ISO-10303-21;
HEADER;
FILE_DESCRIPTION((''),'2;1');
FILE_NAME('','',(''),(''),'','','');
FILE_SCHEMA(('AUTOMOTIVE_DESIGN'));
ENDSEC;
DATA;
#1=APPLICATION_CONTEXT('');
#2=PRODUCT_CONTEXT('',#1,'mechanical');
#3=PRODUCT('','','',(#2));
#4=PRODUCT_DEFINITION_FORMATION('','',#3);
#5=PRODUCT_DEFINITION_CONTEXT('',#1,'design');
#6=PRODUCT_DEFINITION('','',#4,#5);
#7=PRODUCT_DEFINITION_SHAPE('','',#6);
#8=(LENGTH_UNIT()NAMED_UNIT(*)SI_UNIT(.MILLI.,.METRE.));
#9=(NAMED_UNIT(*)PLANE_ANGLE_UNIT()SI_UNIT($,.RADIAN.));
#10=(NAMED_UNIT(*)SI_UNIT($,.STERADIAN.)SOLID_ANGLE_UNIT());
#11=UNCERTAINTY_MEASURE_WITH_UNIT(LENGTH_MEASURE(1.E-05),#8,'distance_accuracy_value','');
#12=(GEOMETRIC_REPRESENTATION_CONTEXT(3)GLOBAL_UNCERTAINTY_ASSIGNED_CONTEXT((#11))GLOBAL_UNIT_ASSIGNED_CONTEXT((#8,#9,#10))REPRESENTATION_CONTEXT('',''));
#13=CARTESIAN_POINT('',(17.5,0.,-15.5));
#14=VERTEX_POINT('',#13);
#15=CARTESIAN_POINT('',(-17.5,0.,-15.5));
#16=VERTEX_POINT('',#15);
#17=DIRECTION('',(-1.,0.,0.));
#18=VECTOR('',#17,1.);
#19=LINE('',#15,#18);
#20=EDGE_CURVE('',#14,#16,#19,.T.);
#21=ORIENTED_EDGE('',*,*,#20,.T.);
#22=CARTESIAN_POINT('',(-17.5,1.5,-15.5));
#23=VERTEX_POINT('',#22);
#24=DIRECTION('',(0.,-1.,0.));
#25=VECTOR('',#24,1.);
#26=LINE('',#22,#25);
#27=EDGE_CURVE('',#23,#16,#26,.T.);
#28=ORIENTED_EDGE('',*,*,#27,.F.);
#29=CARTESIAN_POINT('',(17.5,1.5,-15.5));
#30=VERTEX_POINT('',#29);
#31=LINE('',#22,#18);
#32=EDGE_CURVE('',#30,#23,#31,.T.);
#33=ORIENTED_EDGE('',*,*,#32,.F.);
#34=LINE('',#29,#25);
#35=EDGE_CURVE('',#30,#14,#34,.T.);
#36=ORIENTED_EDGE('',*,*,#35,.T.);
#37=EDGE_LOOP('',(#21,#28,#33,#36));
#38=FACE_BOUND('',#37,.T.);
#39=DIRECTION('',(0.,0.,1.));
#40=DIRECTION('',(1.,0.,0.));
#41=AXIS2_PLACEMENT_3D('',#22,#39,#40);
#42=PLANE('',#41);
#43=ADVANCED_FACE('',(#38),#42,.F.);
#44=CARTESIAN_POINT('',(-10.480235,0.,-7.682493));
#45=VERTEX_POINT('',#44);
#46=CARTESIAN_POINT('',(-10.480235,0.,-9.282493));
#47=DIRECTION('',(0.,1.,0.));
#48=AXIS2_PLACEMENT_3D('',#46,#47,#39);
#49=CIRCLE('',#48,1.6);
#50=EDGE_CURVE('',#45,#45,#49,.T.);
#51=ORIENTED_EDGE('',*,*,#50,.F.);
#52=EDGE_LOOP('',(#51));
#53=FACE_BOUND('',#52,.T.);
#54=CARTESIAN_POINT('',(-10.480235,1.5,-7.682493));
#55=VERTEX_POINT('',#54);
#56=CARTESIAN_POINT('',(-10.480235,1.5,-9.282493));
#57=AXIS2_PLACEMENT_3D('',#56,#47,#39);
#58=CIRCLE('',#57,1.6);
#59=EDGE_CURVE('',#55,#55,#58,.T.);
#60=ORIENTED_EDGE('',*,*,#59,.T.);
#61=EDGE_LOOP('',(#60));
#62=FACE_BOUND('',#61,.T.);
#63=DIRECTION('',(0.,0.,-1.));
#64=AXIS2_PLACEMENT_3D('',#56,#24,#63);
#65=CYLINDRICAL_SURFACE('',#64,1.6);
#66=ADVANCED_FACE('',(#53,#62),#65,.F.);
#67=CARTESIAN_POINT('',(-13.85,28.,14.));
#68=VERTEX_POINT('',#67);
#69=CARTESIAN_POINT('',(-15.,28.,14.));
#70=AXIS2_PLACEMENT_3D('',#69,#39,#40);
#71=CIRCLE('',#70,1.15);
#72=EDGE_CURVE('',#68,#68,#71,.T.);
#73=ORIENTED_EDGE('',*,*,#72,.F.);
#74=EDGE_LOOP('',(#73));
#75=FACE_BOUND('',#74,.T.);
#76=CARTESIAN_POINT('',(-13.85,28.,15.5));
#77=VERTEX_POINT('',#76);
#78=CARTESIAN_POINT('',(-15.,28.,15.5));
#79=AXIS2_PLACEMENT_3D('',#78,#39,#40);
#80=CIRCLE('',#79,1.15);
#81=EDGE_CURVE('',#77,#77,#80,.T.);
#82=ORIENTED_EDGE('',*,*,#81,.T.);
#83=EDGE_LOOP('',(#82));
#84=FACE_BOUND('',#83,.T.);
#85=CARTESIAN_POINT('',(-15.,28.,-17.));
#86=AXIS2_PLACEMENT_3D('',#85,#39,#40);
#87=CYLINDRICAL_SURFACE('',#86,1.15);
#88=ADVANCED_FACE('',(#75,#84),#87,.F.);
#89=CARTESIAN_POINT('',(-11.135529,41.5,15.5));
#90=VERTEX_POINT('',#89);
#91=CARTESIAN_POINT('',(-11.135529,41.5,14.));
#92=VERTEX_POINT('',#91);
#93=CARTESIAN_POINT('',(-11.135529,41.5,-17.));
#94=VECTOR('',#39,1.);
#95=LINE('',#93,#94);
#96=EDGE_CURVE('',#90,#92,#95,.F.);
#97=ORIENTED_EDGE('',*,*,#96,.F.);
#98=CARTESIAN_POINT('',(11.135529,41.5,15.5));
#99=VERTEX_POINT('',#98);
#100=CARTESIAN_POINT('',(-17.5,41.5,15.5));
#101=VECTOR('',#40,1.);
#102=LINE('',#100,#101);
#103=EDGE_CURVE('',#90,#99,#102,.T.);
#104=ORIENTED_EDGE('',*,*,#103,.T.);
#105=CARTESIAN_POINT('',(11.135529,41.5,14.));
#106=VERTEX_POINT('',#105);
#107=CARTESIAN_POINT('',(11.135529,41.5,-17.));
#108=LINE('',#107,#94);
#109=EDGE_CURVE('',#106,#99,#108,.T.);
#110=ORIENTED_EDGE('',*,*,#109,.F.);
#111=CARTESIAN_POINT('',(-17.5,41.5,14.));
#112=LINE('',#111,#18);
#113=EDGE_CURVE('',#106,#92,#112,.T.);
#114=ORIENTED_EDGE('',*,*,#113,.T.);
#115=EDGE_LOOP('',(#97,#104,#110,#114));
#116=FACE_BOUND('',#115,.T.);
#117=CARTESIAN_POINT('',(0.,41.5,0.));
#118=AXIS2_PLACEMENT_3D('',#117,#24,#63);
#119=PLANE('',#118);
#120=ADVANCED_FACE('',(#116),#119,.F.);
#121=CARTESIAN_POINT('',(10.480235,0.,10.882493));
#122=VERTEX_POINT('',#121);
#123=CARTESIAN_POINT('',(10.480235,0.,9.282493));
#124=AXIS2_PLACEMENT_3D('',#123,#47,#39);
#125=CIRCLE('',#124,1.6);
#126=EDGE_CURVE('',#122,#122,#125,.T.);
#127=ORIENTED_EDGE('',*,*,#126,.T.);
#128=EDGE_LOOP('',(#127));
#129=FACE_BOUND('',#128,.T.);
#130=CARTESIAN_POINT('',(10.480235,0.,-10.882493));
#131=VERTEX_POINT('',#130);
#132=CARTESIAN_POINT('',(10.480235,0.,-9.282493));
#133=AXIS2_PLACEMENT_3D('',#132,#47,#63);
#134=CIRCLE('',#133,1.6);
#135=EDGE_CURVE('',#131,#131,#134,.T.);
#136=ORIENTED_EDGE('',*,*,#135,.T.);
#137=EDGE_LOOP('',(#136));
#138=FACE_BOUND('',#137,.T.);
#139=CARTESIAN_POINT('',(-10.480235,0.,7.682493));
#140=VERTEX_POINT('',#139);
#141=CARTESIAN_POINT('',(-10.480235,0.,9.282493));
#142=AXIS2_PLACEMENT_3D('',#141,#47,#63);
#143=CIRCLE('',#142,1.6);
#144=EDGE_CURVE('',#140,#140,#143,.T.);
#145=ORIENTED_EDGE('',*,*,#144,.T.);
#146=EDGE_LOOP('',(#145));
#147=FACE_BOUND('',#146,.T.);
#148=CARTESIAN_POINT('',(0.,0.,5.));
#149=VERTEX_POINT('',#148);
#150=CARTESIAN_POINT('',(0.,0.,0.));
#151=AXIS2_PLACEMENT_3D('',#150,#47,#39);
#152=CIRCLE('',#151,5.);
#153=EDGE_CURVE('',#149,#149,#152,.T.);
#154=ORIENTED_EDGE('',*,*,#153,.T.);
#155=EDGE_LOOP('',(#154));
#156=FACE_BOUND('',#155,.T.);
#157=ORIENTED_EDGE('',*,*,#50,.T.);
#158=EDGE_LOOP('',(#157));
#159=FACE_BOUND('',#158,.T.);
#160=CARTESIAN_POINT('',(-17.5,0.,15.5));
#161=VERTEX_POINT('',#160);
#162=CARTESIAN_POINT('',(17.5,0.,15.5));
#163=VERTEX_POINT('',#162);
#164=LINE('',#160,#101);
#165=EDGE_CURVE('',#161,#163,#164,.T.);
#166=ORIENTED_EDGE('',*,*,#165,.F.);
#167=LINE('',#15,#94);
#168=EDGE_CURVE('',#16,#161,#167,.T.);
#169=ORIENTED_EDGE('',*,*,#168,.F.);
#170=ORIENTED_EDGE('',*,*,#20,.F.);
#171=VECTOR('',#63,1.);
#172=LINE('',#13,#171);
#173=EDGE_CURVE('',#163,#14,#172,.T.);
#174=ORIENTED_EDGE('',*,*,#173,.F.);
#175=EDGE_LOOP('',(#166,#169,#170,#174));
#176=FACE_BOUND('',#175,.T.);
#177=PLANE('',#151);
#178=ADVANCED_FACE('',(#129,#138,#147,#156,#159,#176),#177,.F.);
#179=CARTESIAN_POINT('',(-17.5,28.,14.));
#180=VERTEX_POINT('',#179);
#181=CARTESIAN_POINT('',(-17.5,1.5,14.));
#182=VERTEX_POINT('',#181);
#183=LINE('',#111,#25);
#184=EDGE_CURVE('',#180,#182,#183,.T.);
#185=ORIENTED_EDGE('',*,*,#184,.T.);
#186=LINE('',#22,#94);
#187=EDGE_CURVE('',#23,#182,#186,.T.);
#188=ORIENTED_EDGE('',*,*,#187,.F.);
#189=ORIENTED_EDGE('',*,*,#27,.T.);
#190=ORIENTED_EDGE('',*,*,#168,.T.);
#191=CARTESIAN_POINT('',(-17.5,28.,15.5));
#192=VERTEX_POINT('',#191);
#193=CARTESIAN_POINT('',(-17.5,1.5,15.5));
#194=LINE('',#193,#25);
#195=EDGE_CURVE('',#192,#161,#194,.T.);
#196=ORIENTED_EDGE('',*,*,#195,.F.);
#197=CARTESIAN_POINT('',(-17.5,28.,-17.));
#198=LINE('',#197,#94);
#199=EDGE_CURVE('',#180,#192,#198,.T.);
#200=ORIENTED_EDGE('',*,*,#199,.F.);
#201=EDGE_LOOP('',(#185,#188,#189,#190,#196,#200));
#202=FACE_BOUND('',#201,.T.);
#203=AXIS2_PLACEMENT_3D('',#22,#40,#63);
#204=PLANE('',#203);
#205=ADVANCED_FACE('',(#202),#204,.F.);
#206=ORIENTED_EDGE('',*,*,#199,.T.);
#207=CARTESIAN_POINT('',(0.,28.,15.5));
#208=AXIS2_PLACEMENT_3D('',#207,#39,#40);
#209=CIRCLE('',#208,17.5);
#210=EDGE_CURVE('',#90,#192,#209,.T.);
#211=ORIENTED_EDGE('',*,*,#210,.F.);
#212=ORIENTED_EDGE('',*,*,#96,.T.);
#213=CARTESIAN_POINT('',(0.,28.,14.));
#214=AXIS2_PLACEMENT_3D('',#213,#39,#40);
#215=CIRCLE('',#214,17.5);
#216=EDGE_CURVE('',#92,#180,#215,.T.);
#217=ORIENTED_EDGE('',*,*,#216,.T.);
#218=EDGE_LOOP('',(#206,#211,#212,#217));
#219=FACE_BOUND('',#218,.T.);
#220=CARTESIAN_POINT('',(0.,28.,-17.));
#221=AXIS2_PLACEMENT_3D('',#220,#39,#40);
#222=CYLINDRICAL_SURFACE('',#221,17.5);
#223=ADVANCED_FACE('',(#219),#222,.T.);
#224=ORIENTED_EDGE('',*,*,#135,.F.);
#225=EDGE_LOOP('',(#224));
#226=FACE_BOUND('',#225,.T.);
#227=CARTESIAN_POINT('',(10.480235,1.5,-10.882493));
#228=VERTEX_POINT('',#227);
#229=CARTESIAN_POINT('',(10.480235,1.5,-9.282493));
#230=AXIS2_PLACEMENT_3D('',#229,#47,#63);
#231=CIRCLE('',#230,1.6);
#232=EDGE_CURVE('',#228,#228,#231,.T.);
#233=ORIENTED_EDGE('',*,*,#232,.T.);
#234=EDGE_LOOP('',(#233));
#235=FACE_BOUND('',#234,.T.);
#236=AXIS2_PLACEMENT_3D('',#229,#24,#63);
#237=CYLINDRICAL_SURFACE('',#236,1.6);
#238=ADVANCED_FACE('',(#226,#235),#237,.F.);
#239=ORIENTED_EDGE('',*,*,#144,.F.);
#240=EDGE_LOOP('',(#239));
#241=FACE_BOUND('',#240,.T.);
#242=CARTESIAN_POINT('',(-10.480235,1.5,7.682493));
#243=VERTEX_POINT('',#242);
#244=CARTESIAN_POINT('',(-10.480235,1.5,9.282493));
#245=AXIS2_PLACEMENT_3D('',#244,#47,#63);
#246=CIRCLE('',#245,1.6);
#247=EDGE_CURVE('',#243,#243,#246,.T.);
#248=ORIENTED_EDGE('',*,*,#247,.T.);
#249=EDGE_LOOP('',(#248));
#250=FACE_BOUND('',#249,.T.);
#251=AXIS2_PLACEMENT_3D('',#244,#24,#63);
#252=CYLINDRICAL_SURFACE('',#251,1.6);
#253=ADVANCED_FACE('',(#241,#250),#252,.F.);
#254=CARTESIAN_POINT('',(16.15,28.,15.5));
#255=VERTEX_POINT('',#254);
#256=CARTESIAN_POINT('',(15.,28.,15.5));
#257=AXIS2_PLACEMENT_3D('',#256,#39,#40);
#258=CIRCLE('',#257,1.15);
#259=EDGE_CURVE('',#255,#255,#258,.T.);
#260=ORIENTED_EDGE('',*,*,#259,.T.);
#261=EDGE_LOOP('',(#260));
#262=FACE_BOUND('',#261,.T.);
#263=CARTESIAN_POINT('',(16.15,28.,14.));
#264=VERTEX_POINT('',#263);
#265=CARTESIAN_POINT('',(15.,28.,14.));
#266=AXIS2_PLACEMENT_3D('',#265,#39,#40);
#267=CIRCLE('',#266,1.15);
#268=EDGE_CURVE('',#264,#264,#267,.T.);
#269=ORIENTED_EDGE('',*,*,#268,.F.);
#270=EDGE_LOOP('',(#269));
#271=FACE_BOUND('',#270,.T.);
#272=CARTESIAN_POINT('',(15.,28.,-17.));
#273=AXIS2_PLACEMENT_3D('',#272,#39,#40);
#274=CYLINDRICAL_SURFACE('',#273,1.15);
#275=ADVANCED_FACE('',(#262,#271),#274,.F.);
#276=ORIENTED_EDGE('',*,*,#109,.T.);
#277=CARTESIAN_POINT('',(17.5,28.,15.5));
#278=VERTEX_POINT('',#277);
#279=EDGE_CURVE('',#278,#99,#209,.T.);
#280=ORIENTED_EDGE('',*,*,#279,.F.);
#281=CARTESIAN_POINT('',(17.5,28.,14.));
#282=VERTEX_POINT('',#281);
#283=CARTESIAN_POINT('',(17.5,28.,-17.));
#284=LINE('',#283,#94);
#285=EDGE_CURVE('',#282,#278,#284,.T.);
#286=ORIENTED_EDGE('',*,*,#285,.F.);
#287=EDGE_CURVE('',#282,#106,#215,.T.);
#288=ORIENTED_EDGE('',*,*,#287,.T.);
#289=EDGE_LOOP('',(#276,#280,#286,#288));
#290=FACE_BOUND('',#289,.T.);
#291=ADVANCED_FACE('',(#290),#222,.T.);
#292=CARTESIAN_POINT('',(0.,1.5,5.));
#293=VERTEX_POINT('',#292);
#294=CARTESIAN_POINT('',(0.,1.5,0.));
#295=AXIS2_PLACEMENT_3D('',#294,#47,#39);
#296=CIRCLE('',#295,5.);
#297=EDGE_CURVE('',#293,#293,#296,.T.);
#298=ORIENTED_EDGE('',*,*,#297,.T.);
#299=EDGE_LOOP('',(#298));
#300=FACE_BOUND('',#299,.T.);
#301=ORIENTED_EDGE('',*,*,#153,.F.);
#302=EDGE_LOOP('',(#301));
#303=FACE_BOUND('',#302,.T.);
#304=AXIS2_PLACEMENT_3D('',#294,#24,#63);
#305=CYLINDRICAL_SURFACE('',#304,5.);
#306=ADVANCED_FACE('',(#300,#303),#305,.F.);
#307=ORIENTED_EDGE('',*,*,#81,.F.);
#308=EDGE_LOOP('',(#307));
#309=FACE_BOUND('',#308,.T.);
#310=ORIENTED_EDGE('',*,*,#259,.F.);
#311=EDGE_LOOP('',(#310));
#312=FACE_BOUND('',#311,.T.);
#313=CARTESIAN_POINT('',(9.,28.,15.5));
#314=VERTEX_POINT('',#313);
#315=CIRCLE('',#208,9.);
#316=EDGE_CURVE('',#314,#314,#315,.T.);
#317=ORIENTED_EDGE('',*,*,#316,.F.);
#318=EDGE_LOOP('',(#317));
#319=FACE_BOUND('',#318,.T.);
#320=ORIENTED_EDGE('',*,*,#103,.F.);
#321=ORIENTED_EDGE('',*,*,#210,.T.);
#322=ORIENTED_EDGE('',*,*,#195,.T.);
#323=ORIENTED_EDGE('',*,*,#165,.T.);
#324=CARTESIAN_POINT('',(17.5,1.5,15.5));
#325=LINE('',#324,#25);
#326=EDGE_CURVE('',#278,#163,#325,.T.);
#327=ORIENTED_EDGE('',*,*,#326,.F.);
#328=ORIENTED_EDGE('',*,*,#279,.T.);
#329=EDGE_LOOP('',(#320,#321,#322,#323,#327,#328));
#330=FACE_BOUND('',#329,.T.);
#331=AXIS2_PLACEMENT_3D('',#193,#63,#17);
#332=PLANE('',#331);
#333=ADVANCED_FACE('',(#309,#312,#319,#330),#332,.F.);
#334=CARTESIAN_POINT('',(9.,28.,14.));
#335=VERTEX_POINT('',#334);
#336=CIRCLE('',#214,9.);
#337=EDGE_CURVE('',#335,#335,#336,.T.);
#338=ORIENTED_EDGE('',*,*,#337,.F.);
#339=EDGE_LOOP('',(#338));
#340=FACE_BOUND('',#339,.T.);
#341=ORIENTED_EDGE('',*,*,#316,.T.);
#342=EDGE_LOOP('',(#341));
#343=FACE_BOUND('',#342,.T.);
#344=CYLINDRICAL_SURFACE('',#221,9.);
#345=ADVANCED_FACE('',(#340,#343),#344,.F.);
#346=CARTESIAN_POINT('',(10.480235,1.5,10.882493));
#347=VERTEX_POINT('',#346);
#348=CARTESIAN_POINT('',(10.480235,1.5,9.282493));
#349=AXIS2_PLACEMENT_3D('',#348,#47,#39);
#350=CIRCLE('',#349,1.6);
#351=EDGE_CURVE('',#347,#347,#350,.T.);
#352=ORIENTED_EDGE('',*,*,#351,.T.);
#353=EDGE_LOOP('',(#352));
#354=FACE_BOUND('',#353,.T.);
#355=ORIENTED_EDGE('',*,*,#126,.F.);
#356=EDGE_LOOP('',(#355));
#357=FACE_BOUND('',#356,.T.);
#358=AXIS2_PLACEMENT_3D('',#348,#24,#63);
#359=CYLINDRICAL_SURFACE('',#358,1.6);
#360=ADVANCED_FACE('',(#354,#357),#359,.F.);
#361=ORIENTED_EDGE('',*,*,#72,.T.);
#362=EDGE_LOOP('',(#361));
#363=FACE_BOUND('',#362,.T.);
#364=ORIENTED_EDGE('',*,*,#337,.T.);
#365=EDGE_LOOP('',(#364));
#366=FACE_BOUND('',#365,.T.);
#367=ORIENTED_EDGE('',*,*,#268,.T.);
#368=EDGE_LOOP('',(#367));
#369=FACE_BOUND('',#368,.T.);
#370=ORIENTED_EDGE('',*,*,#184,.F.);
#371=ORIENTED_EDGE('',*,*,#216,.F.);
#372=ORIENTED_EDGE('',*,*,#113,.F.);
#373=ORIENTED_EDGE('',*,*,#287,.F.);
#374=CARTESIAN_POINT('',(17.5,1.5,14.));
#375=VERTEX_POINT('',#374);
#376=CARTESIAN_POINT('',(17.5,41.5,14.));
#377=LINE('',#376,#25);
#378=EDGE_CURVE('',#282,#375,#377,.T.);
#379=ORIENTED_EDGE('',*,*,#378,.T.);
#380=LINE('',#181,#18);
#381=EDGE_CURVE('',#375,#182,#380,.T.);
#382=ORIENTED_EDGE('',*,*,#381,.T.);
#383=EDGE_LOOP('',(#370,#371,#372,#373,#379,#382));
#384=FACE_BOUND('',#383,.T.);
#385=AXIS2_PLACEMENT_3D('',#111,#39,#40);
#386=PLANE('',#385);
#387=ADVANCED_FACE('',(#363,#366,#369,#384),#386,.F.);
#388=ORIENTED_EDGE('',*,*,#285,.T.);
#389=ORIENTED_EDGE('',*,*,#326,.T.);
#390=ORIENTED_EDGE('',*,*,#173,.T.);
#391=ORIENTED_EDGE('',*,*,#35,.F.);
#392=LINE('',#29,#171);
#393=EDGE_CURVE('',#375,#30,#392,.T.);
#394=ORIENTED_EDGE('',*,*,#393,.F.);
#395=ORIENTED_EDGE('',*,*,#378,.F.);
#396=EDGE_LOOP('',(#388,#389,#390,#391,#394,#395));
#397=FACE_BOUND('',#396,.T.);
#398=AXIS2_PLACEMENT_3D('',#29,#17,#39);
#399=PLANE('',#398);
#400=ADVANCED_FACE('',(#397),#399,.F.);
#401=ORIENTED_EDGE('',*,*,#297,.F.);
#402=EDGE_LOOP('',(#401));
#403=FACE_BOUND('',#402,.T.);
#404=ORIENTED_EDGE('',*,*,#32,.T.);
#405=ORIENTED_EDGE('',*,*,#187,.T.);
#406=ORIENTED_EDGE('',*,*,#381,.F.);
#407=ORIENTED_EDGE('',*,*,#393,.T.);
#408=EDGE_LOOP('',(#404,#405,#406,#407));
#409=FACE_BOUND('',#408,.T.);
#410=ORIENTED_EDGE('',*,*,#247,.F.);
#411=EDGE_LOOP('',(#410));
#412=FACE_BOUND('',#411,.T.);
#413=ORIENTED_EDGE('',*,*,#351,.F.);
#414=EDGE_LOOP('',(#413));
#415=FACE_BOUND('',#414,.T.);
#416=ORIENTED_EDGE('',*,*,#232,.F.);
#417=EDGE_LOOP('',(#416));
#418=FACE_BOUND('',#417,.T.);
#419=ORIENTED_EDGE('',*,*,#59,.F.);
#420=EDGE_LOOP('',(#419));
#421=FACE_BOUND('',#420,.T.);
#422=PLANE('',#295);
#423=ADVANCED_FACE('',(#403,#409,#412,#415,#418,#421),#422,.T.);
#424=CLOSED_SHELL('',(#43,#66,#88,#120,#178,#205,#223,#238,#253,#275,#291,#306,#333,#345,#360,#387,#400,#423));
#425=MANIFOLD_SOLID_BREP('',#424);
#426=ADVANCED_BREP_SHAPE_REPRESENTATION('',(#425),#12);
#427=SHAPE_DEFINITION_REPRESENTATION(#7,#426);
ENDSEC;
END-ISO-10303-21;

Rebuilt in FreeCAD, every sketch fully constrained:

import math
import FreeCAD as App
import Part
import Sketcher

V = App.Vector

doc = App.newDocument("Part")
body = doc.addObject("PartDesign::Body", "Body")

# Sketch on XZ plane
sketch1 = body.newObject("Sketcher::SketchObject", "Sketch")
sketch1.AttachmentSupport = (doc.getObject("XZ_Plane"), [""])
sketch1.MapMode = "FlatFace"
sketch1.addGeometry([
    Part.LineSegment(V(-17.5, -15.5, 0), V(-17.5, 15.5, 0)),  # 0
    Part.LineSegment(V(-17.5, 15.5, 0), V(17.5, 15.5, 0)),  # 1
    Part.LineSegment(V(17.5, 15.5, 0), V(17.5, -15.5, 0)),  # 2
    Part.LineSegment(V(17.5, -15.5, 0), V(-17.5, -15.5, 0)),  # 3
    Part.Circle(V(-10.5, 9.3, 0), V(0, 0, 1), 1.6),  # 4
    Part.Circle(V(10.5, 9.3, 0), V(0, 0, 1), 1.6),  # 5
    Part.Circle(V(0, 0, 0), V(0, 0, 1), 5),  # 6
    Part.Circle(V(-10.5, -9.3, 0), V(0, 0, 1), 1.6),  # 7
    Part.Circle(V(10.5, -9.3, 0), V(0, 0, 1), 1.6),  # 8
], False)
sketch1.addConstraint([
    Sketcher.Constraint("Coincident", 0, 2, 1, 1),
    Sketcher.Constraint("Coincident", 1, 2, 2, 1),
    Sketcher.Constraint("Coincident", 2, 2, 3, 1),
    Sketcher.Constraint("Coincident", 3, 2, 0, 1),
    Sketcher.Constraint("Vertical", 0),
    Sketcher.Constraint("Horizontal", 1),
    Sketcher.Constraint("Vertical", 2),
    Sketcher.Constraint("Horizontal", 3),
    Sketcher.Constraint("Coincident", 6, 3, -1, 1),
    Sketcher.Constraint("Equal", 4, 5),
    Sketcher.Constraint("Equal", 5, 7),
    Sketcher.Constraint("Equal", 7, 8),
    Sketcher.Constraint("Symmetric", 5, 3, 7, 3, -1, 1),
    Sketcher.Constraint("Symmetric", 4, 3, 8, 3, -1, 1),
    Sketcher.Constraint("Symmetric", 0, 2, 2, 2, -1, 1),
    Sketcher.Constraint("Symmetric", 4, 3, 5, 3, -2),
    Sketcher.Constraint("Diameter", 6, 10.0),
    Sketcher.Constraint("Diameter", 4, 3.2),
    Sketcher.Constraint("DistanceX", 1, 1, 1, 2, 35.0),
    Sketcher.Constraint("DistanceY", 0, 1, 0, 2, 31.0),
    Sketcher.Constraint("DistanceX", 4, 3, 5, 3, 20.960469),
    Sketcher.Constraint("DistanceY", -1, 1, 4, 3, 9.282493),
])
pad1 = body.newObject("PartDesign::Pad", "Pad")
pad1.Profile = sketch1
pad1.Length = 1.5
pad1.Reversed = True

# Sketch on XZ plane
sketch2 = body.newObject("Sketcher::SketchObject", "Sketch001")
sketch2.AttachmentSupport = (doc.getObject("XZ_Plane"), [""])
sketch2.MapMode = "FlatFace"
sketch2.AttachmentOffset = App.Placement(V(0, 0, -1.5), App.Rotation())
sketch2.addGeometry([
    Part.LineSegment(V(-17.5, 14, 0), V(-17.5, 15.5, 0)),
    Part.LineSegment(V(-17.5, 15.5, 0), V(17.5, 15.5, 0)),
    Part.LineSegment(V(17.5, 15.5, 0), V(17.5, 14, 0)),
    Part.LineSegment(V(17.5, 14, 0), V(-17.5, 14, 0)),
], False)
sketch2.addConstraint([
    Sketcher.Constraint("Coincident", 0, 2, 1, 1),
    Sketcher.Constraint("Coincident", 1, 2, 2, 1),
    Sketcher.Constraint("Coincident", 2, 2, 3, 1),
    Sketcher.Constraint("Coincident", 3, 2, 0, 1),
    Sketcher.Constraint("Vertical", 0),
    Sketcher.Constraint("Horizontal", 1),
    Sketcher.Constraint("Vertical", 2),
    Sketcher.Constraint("Horizontal", 3),
    Sketcher.Constraint("DistanceX", 1, 1, 1, 2, 35.0),
    Sketcher.Constraint("DistanceY", 0, 1, 0, 2, 1.5),
    Sketcher.Constraint("DistanceY", -1, 1, 2, 2, 14.0),
    Sketcher.Constraint("DistanceX", 0, 2, -1, 1, 17.5),
])
pad2 = body.newObject("PartDesign::Pad", "Pad001")
pad2.Profile = sketch2
pad2.Length = 40
pad2.Reversed = True

# Sketch on XY plane
sketch3 = body.newObject("Sketcher::SketchObject", "Sketch002")
sketch3.AttachmentSupport = (doc.getObject("XY_Plane"), [""])
sketch3.MapMode = "FlatFace"
sketch3.AttachmentOffset = App.Placement(V(0, 0, 15.5), App.Rotation())
sketch3.addGeometry([
    Part.LineSegment(V(-18, 42, 0), V(-18, 28, 0)),  # 0
    Part.ArcOfCircle(Part.Circle(V(0, 28, 0), V(0, 0, 1), 17), math.radians(130), math.radians(180)),  # 1
    Part.LineSegment(V(-11, 42, 0), V(-18, 42, 0)),  # 2
    Part.LineSegment(V(18, 42, 0), V(11, 42, 0)),  # 3
    Part.ArcOfCircle(Part.Circle(V(0, 28, 0), V(0, 0, 1), 17), math.radians(0), math.radians(50)),  # 4
    Part.LineSegment(V(18, 28, 0), V(18, 42, 0)),  # 5
], False)
sketch3.addConstraint([
    Sketcher.Constraint("Tangent", 0, 2, 1, 2),
    Sketcher.Constraint("Coincident", 1, 1, 2, 1),
    Sketcher.Constraint("Coincident", 2, 2, 0, 1),
    Sketcher.Constraint("Coincident", 3, 2, 4, 2),
    Sketcher.Constraint("Tangent", 4, 1, 5, 1),
    Sketcher.Constraint("Coincident", 5, 2, 3, 1),
    Sketcher.Constraint("Vertical", 0),
    Sketcher.Constraint("Horizontal", 2),
    Sketcher.Constraint("Horizontal", 3),
    Sketcher.Constraint("Vertical", 5),
    Sketcher.Constraint("Coincident", 4, 3, 1, 3),
    Sketcher.Constraint("Equal", 1, 4),
    Sketcher.Constraint("Symmetric", 1, 1, 3, 2, -2),
    Sketcher.Constraint("Radius", 1, 17.5),
    Sketcher.Constraint("DistanceY", 0, 2, 0, 1, 13.5),
    Sketcher.Constraint("DistanceY", -1, 1, 1, 3, 28.0),
])
pocket1 = body.newObject("PartDesign::Pocket", "Pocket")
pocket1.Profile = sketch3
pocket1.Length = 32.5

# Sketch on XY plane
sketch4 = body.newObject("Sketcher::SketchObject", "Sketch003")
sketch4.AttachmentSupport = (doc.getObject("XY_Plane"), [""])
sketch4.MapMode = "FlatFace"
sketch4.AttachmentOffset = App.Placement(V(0, 0, 15.5), App.Rotation())
sketch4.addGeometry([
    Part.Circle(V(0, 28, 0), V(0, 0, 1), 9),
    Part.Circle(V(-15, 28, 0), V(0, 0, 1), 1.1),
    Part.Circle(V(15, 28, 0), V(0, 0, 1), 1.1),
], False)
sketch4.addConstraint([
    Sketcher.Constraint("Equal", 1, 2),
    Sketcher.Constraint("Symmetric", 1, 3, 2, 3, -2),
    Sketcher.Constraint("PointOnObject", 0, 3, -2),
    Sketcher.Constraint("Horizontal", 0, 3, 1, 3),
    Sketcher.Constraint("Diameter", 0, 18.0),
    Sketcher.Constraint("Diameter", 1, 2.3),
    Sketcher.Constraint("DistanceY", -1, 1, 0, 3, 28.0),
    Sketcher.Constraint("DistanceX", 1, 3, -1, 1, 15.0),
])
pocket2 = body.newObject("PartDesign::Pocket", "Pocket001")
pocket2.Profile = sketch4
pocket2.Length = 32.5

doc.recompute()
